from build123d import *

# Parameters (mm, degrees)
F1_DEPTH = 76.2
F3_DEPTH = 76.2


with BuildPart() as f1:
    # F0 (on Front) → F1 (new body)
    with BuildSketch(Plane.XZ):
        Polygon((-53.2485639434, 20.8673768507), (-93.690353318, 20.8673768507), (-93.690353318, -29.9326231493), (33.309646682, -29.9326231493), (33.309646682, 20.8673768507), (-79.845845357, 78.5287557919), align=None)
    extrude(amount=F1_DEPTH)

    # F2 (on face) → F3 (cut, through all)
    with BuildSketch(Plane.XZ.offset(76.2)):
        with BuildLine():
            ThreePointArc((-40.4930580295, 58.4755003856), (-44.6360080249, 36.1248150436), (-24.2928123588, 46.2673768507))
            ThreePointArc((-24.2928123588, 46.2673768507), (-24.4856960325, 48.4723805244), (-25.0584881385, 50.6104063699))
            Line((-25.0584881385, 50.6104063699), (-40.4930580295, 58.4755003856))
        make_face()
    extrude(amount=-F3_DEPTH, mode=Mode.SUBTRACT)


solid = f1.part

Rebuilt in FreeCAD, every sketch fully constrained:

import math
import FreeCAD as App
import Part
import Sketcher
Q = App.Units.Quantity

doc = App.newDocument("Part")
body = doc.addObject("PartDesign::Body", "Body")

sketch1 = body.newObject("Sketcher::SketchObject", "Sketch")
sketch1.AttachmentSupport = (doc.getObject("XZ_Plane"), [""])
sketch1.MapMode = "FlatFace"
sketch1.addGeometry(Part.LineSegment(App.Vector(-53, 21, 0), App.Vector(-94, 21, 0)), False)
sketch1.addGeometry(Part.LineSegment(App.Vector(-94, 21, 0), App.Vector(-94, -30, 0)), False)
sketch1.addGeometry(Part.LineSegment(App.Vector(-94, -30, 0), App.Vector(33, -30, 0)), False)
sketch1.addGeometry(Part.LineSegment(App.Vector(33, -30, 0), App.Vector(33, 21, 0)), False)
sketch1.addGeometry(Part.LineSegment(App.Vector(33, 21, 0), App.Vector(-80, 79, 0)), False)
sketch1.addGeometry(Part.LineSegment(App.Vector(-80, 79, 0), App.Vector(-53, 21, 0)), False)
sketch1.addConstraint(Sketcher.Constraint("Coincident", 0, 2, 1, 1))
sketch1.addConstraint(Sketcher.Constraint("Coincident", 1, 2, 2, 1))
sketch1.addConstraint(Sketcher.Constraint("Coincident", 2, 2, 3, 1))
sketch1.addConstraint(Sketcher.Constraint("Coincident", 3, 2, 4, 1))
sketch1.addConstraint(Sketcher.Constraint("Coincident", 4, 2, 5, 1))
sketch1.addConstraint(Sketcher.Constraint("Coincident", 5, 2, 0, 1))
sketch1.addConstraint(Sketcher.Constraint("Horizontal", 0))
sketch1.addConstraint(Sketcher.Constraint("Vertical", 1))
sketch1.addConstraint(Sketcher.Constraint("Horizontal", 2))
sketch1.addConstraint(Sketcher.Constraint("Vertical", 3))
sketch1.addConstraint(Sketcher.Constraint("Horizontal", 0, 2, 3, 2))
sketch1.addConstraint(Sketcher.Constraint("DistanceX", 2, 1, 2, 2, Q("5 in")))
sketch1.addConstraint(Sketcher.Constraint("DistanceY", 1, 2, 1, 1, Q("2 in")))
sketch1.addConstraint(Sketcher.Constraint("Distance", 4, Q("5 in")))
sketch1.addConstraint(Sketcher.Constraint("Distance", 5, Q("2.5 in")))
sketch1.addConstraint(Sketcher.Constraint("DistanceX", 5, 2, -1, 1, Q("2.0964002 in")))
sketch1.addConstraint(Sketcher.Constraint("DistanceX", 0, 2, 0, 1, 40.441789))
sketch1.addConstraint(Sketcher.Constraint("DistanceY", -1, 1, 0, 2, 20.867377))
pad1 = body.newObject("PartDesign::Pad", "Pad")
pad1.Profile = sketch1
pad1.Length = Q("3 in")

sketch2 = body.newObject("Sketcher::SketchObject", "Sketch001")
sketch2.AttachmentSupport = (doc.getObject("XZ_Plane"), [""])
sketch2.MapMode = "FlatFace"
sketch2.AttachmentOffset = App.Placement(App.Vector(0, 0, 3 * 25.4), App.Rotation())
sketch2.addGeometry(Part.ArcOfCircle(Part.Circle(App.Vector(-37, 46.3, 0), App.Vector(0, 0, 1), 12.7), math.radians(106), math.radians(360)), False)
sketch2.addGeometry(Part.ArcOfCircle(Part.Circle(App.Vector(-37, 46.3, 0), App.Vector(0, 0, 1), 12.7), math.radians(0), math.radians(20)), False)
sketch2.addGeometry(Part.LineSegment(App.Vector(-25.1, 50.6, 0), App.Vector(-40.5, 58.5, 0)), False)
sketch2.addConstraint(Sketcher.Constraint("Tangent", 0, 2, 1, 1))
sketch2.addConstraint(Sketcher.Constraint("Coincident", 1, 2, 2, 1))
sketch2.addConstraint(Sketcher.Constraint("Coincident", 2, 2, 0, 1))
sketch2.addConstraint(Sketcher.Constraint("Equal", 0, 1))
sketch2.addConstraint(Sketcher.Constraint("Horizontal", 1, 3, 0, 2))
sketch2.addConstraint(Sketcher.Constraint("Radius", 0, Q("0.5 in")))
sketch2.addConstraint(Sketcher.Constraint("DistanceY", -1, 1, 2, 2, 58.4755))
sketch2.addConstraint(Sketcher.Constraint("Distance", 2, 17.32298))
sketch2.addConstraint(Sketcher.Constraint("DistanceX", 1, 2, -1, 1, 25.058488))
sketch2.addConstraint(Sketcher.Constraint("DistanceX", 2, 2, -1, 1, 40.493058))
pocket1 = body.newObject("PartDesign::Pocket", "Pocket")
pocket1.Profile = sketch2
pocket1.Type = "ThroughAll"

doc.recompute()
